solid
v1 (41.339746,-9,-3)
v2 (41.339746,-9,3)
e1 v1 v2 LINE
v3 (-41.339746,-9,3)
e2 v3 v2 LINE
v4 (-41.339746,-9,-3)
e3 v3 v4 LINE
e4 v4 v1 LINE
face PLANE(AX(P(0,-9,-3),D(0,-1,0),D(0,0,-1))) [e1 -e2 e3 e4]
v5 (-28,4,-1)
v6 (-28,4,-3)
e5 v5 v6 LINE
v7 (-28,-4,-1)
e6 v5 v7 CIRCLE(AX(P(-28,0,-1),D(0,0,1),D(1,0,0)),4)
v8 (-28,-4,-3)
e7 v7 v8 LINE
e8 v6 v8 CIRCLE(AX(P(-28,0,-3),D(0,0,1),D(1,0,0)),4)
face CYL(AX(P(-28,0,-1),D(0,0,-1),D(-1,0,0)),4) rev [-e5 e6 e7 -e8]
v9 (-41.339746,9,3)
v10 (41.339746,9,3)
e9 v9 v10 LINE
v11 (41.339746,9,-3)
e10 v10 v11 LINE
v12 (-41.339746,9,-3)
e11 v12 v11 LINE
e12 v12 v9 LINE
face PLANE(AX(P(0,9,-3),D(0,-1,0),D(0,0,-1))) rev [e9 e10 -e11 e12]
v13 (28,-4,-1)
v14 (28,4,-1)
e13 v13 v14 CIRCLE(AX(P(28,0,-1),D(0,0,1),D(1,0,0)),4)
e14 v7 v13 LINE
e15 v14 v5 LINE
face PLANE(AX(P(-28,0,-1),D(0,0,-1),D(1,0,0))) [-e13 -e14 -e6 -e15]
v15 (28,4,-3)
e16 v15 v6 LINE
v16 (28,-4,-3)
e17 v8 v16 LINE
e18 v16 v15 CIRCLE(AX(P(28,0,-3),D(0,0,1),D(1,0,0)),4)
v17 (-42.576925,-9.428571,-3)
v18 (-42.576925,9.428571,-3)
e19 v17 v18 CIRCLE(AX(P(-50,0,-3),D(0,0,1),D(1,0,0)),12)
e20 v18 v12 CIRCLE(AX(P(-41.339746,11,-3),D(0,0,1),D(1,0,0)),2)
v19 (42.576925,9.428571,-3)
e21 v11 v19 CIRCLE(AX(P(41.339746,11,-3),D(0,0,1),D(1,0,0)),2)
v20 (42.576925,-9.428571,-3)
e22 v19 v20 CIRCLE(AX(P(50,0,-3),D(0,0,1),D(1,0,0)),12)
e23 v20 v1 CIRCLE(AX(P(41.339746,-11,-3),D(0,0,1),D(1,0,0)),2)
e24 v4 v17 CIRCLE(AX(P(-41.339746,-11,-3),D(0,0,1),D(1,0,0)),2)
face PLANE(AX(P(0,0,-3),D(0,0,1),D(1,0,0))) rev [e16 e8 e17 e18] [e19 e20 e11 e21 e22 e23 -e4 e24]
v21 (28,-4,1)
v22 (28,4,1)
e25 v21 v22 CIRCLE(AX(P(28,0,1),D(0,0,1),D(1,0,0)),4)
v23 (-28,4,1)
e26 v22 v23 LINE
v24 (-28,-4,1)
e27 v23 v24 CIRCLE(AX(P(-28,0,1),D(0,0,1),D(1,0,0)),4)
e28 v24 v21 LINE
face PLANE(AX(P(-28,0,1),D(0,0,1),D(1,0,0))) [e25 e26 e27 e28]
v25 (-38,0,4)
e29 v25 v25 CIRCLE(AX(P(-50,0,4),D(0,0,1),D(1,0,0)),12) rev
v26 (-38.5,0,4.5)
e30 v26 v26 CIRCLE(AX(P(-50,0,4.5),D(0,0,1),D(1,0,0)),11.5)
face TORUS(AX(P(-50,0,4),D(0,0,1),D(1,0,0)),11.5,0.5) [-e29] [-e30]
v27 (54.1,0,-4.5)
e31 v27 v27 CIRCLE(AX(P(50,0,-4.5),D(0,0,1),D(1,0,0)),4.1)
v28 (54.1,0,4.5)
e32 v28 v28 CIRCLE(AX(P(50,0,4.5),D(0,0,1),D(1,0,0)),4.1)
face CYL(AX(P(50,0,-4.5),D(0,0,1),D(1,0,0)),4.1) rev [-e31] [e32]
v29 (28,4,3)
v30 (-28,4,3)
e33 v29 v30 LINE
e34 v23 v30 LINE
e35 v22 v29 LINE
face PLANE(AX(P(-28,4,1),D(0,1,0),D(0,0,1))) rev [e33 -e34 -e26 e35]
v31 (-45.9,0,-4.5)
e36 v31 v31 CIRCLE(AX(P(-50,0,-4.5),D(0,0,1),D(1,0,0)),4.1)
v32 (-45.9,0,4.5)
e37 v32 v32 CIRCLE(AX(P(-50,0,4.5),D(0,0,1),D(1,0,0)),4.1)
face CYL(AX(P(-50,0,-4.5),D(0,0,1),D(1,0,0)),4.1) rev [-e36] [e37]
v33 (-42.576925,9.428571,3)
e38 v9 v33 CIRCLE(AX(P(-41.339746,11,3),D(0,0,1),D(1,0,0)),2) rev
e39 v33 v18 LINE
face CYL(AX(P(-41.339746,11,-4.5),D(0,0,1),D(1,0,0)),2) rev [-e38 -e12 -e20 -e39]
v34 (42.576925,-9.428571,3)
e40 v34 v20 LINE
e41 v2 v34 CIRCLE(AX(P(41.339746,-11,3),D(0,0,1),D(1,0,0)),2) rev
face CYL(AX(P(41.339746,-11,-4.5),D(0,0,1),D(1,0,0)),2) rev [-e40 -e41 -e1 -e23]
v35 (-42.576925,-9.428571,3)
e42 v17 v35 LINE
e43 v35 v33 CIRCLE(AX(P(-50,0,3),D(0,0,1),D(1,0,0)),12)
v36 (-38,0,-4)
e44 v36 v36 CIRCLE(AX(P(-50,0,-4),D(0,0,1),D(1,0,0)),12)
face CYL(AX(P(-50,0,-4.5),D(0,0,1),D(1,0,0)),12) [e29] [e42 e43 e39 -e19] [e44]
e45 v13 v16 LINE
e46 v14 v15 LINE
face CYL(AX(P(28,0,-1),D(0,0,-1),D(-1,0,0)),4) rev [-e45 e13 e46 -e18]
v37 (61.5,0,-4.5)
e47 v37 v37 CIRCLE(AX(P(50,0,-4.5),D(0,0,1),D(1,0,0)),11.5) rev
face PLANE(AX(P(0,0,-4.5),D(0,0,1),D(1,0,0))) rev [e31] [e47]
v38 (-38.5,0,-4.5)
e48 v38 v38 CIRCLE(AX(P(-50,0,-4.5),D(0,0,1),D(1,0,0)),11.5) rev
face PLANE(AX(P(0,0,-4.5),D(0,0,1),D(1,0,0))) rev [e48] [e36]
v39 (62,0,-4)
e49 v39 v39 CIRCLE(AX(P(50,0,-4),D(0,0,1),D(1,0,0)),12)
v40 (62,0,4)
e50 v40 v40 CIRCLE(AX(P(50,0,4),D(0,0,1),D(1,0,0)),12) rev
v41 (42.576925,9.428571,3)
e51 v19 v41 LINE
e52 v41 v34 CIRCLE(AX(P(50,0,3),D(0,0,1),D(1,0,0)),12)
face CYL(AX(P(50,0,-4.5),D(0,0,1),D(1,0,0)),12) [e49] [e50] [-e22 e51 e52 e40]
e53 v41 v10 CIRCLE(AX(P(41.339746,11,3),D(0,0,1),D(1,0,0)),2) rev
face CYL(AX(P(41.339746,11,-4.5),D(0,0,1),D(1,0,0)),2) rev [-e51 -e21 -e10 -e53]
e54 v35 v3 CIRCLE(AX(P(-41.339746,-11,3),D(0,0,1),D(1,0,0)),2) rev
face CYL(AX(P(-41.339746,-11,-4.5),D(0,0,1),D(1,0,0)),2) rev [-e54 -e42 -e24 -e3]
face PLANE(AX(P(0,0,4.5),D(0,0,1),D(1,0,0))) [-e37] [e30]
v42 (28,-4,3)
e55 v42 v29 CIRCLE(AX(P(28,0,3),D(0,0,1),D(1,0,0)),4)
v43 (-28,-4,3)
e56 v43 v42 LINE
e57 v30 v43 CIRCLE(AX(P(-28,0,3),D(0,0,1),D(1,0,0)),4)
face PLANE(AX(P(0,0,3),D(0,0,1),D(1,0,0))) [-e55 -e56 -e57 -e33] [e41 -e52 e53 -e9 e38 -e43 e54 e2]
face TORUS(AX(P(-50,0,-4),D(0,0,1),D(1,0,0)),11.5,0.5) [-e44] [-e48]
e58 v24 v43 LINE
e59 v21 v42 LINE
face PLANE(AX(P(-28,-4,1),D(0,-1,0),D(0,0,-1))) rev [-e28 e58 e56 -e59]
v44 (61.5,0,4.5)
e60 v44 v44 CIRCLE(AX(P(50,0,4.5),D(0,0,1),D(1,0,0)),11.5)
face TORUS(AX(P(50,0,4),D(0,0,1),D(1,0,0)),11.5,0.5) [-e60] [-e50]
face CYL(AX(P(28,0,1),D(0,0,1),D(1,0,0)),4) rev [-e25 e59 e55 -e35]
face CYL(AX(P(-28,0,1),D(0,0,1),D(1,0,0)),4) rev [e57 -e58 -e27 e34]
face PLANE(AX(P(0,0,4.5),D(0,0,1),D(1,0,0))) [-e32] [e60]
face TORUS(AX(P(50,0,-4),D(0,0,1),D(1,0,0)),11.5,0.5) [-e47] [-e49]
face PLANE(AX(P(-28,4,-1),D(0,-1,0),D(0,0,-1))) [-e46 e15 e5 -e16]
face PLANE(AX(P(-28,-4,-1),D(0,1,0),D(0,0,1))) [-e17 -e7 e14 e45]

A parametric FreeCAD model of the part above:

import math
import FreeCAD as App
import Part
import Sketcher

V = App.Vector


def edges_at(feature, points):
    """Names of the edges that pass closest to the given points."""
    edges = feature.Shape.Edges
    near = lambda p: min(range(len(edges)), key=lambda i: edges[i].distToShape(Part.Vertex(*p))[0])
    return sorted({f"Edge{near(p) + 1}" for p in points})

doc = App.newDocument("Part")
body = doc.addObject("PartDesign::Body", "Body")

# Sketch on XY plane
sketch1 = body.newObject("Sketcher::SketchObject", "Sketch")
sketch1.AttachmentSupport = (doc.getObject("XY_Plane"), [""])
sketch1.MapMode = "FlatFace"
sketch1.addGeometry([
    Part.LineSegment(V(42, 9, 0), V(-42, 9, 0)),  # 0
    Part.ArcOfCircle(Part.Circle(V(-50, 0, 0), V(0, 0, 1), 12), math.radians(0), math.radians(49)),  # 1
    Part.ArcOfCircle(Part.Circle(V(-50, 0, 0), V(0, 0, 1), 12), math.radians(-49), math.radians(0)),  # 2
    Part.LineSegment(V(-42, -9, 0), V(42, -9, 0)),  # 3
    Part.ArcOfCircle(Part.Circle(V(50, 0, 0), V(0, 0, 1), 12), math.radians(131), math.radians(229)),  # 4
], False)
sketch1.addConstraint([
    Sketcher.Constraint("Coincident", 0, 2, 1, 2),
    Sketcher.Constraint("Tangent", 1, 1, 2, 2),
    Sketcher.Constraint("Coincident", 2, 1, 3, 1),
    Sketcher.Constraint("Coincident", 3, 2, 4, 2),
    Sketcher.Constraint("Coincident", 4, 1, 0, 1),
    Sketcher.Constraint("Horizontal", 0),
    Sketcher.Constraint("Horizontal", 3),
    Sketcher.Constraint("Equal", 1, 2),
    Sketcher.Constraint("Equal", 2, 4),
    Sketcher.Constraint("Symmetric", 1, 3, 4, 3, -1, 1),
    Sketcher.Constraint("Symmetric", 0, 2, 2, 1, -1),
    Sketcher.Constraint("PointOnObject", 1, 1, -1),
    Sketcher.Constraint("Radius", 1, 12.0),
    Sketcher.Constraint("DistanceX", 1, 3, -1, 1, 50.0),
    Sketcher.Constraint("DistanceY", -1, 1, 0, 2, 9.0),
])
pad1 = body.newObject("PartDesign::Pad", "Pad")
pad1.Profile = sketch1
pad1.Type = "TwoLengths"
pad1.Length = 3
pad1.Length2 = 3

# Sketch on XY plane
sketch2 = body.newObject("Sketcher::SketchObject", "Sketch001")
sketch2.AttachmentSupport = (doc.getObject("XY_Plane"), [""])
sketch2.MapMode = "FlatFace"
sketch2.addGeometry([
    Part.Circle(V(-50, 0, 0), V(0, 0, 1), 12),
    Part.Circle(V(-50, 0, 0), V(0, 0, 1), 4.1),
    Part.Circle(V(50, 0, 0), V(0, 0, 1), 12),
    Part.Circle(V(50, 0, 0), V(0, 0, 1), 4.1),
], False)
sketch2.addConstraint([
    Sketcher.Constraint("Coincident", 1, 3, 0, 3),
    Sketcher.Constraint("Coincident", 3, 3, 2, 3),
    Sketcher.Constraint("Equal", 0, 2),
    Sketcher.Constraint("Equal", 1, 3),
    Sketcher.Constraint("Symmetric", 0, 3, 2, 3, -1, 1),
    Sketcher.Constraint("PointOnObject", 0, 3, -1),
    Sketcher.Constraint("Diameter", 0, 24.0),
    Sketcher.Constraint("Diameter", 1, 8.2),
    Sketcher.Constraint("DistanceX", 0, 3, -1, 1, 50.0),
])
pad2 = body.newObject("PartDesign::Pad", "Pad001")
pad2.Profile = sketch2
pad2.Type = "TwoLengths"
pad2.Length = 4.5
pad2.Length2 = 4.5
doc.recompute()

fillet = body.newObject("PartDesign::Fillet", "Fillet")
fillet.Base = (pad2, edges_at(pad2, [
    (42.063, -9, 0),
    (-42.063, -9, 0),
    (-42.063, 9, 0),
    (42.063, 9, 0),
]))
fillet.Radius = 2
doc.recompute()

fillet2 = body.newObject("PartDesign::Fillet", "Fillet001")
fillet2.Base = (fillet, edges_at(fillet, [
    (-62, 0, -4.5),
    (-62, 0, 4.5),
    (38, 0, -4.5),
    (38, 0, 4.5),
]))
fillet2.Radius = 0.5

# Sketch on XY plane
sketch3 = body.newObject("Sketcher::SketchObject", "Sketch002")
sketch3.AttachmentSupport = (doc.getObject("XY_Plane"), [""])
sketch3.MapMode = "FlatFace"
sketch3.AttachmentOffset = App.Placement(V(0, 0, 3), App.Rotation())
sketch3.addGeometry([
    Part.LineSegment(V(28, 4, 0), V(-28, 4, 0)),
    Part.ArcOfCircle(Part.Circle(V(-28, 0, 0), V(0, 0, 1), 4), math.radians(90), math.radians(270)),
    Part.LineSegment(V(-28, -4, 0), V(28, -4, 0)),
    Part.ArcOfCircle(Part.Circle(V(28, 0, 0), V(0, 0, 1), 4), math.radians(-90), math.radians(90)),
], False)
sketch3.addConstraint([
    Sketcher.Constraint("Tangent", 0, 2, 1, 1),
    Sketcher.Constraint("Tangent", 1, 2, 2, 1),
    Sketcher.Constraint("Tangent", 2, 2, 3, 1),
    Sketcher.Constraint("Tangent", 3, 2, 0, 1),
    Sketcher.Constraint("Horizontal", 0),
    Sketcher.Constraint("Horizontal", 2),
    Sketcher.Constraint("Symmetric", 1, 3, 3, 3, -1, 1),
    Sketcher.Constraint("Radius", 1, 4.0),
    Sketcher.Constraint("DistanceX", 0, 2, 0, 1, 56.0),
])
pocket1 = body.newObject("PartDesign::Pocket", "Pocket")
pocket1.Profile = sketch3
pocket1.Length = 2
doc.recompute()

mirrored = body.newObject("PartDesign::Mirrored", "Mirrored")
mirrored.Originals = [pocket1]
mirrored.MirrorPlane = (doc.getObject("XY_Plane"), [""])
body.Tip = mirrored

doc.recompute()
